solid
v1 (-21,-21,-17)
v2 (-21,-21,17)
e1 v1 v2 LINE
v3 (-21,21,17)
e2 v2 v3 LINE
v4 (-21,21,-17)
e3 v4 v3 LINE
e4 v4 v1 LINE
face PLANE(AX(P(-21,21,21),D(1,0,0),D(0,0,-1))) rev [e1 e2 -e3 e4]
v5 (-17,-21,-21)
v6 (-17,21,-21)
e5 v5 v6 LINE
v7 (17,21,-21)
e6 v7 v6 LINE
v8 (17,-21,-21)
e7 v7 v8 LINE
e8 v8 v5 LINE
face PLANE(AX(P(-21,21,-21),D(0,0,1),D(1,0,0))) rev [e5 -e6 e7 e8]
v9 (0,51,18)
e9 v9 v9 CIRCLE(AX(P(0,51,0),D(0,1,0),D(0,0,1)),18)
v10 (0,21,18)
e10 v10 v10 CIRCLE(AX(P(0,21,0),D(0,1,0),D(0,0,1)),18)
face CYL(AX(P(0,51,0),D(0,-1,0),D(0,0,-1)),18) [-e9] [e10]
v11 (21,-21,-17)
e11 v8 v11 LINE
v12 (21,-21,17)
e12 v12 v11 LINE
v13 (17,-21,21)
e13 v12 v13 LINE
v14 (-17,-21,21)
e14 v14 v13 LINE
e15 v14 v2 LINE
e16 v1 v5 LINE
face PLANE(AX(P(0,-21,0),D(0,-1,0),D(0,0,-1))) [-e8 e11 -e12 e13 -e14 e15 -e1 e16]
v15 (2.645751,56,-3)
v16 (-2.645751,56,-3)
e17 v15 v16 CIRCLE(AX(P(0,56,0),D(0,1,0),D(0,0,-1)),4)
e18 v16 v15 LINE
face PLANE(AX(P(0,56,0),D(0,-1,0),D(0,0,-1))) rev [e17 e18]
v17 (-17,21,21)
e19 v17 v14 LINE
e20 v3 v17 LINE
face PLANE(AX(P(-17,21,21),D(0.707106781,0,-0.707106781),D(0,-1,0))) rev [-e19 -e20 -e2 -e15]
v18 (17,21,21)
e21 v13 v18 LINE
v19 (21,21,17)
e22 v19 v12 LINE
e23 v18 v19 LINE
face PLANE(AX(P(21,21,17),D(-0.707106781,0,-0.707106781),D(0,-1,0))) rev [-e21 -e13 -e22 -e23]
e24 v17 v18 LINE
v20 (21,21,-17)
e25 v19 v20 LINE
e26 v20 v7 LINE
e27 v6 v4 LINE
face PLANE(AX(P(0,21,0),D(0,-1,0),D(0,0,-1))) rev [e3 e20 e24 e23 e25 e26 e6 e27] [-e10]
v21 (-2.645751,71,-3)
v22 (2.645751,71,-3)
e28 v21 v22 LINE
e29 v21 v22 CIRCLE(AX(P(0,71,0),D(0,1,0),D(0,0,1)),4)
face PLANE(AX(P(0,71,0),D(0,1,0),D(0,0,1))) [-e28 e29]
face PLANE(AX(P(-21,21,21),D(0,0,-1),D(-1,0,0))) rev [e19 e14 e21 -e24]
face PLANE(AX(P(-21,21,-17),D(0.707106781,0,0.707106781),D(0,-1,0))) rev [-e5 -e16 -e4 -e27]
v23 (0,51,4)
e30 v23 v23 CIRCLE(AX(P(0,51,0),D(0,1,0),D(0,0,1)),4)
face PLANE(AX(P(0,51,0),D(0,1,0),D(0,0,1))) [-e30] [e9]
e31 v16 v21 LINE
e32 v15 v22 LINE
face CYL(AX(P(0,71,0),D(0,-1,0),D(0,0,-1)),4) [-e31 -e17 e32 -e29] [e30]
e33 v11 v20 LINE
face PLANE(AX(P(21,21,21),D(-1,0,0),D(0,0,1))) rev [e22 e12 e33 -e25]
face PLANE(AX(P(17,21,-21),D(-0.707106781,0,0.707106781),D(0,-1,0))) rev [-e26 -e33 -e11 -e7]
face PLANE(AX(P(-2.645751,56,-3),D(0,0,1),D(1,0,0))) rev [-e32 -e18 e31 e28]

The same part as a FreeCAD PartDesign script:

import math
import FreeCAD as App
import Part
import Sketcher

V = App.Vector


def edges_at(feature, points):
    """Names of the edges that pass closest to the given points."""
    edges = feature.Shape.Edges
    near = lambda p: min(range(len(edges)), key=lambda i: edges[i].distToShape(Part.Vertex(*p))[0])
    return sorted({f"Edge{near(p) + 1}" for p in points})

doc = App.newDocument("Part")
body = doc.addObject("PartDesign::Body", "Body")

# Sketch on XZ plane
sketch1 = doc.addObject("Sketcher::SketchObject", "Sketch")
body.addObject(sketch1)
sketch1.AttachmentSupport = (doc.XZ_Plane, [""])
sketch1.MapMode = "FlatFace"
sketch1.addGeometry([
    Part.LineSegment(V(-21, -21, 0), V(-21, 21, 0)),
    Part.LineSegment(V(-21, 21, 0), V(21, 21, 0)),
    Part.LineSegment(V(21, 21, 0), V(21, -21, 0)),
    Part.LineSegment(V(21, -21, 0), V(-21, -21, 0)),
], False)
sketch1.addConstraint([
    Sketcher.Constraint("Coincident", 0, 2, 1, 1),
    Sketcher.Constraint("Coincident", 1, 2, 2, 1),
    Sketcher.Constraint("Coincident", 2, 2, 3, 1),
    Sketcher.Constraint("Coincident", 3, 2, 0, 1),
    Sketcher.Constraint("Vertical", 0),
    Sketcher.Constraint("Horizontal", 1),
    Sketcher.Constraint("Vertical", 2),
    Sketcher.Constraint("Horizontal", 3),
    Sketcher.Constraint("Symmetric", 0, 2, 2, 2, -1, 1),
    Sketcher.Constraint("Equal", 3, 0),
    Sketcher.Constraint("DistanceX", 1, 1, 1, 2, 42.0),
])
pad1 = doc.addObject("PartDesign::Pad", "Pad")
body.addObject(pad1)
pad1.Profile = sketch1
pad1.Length = 42
pad1.Midplane = True
doc.recompute()

chamfer = doc.addObject("PartDesign::Chamfer", "Chamfer")
body.addObject(chamfer)
chamfer.Base = (pad1, edges_at(pad1, [
    (21, 0, 21),
    (-21, 0, 21),
    (-21, 0, -21),
    (21, 0, -21),
]))
chamfer.Size = 4

# Sketch on XZ plane
sketch2 = doc.addObject("Sketcher::SketchObject", "Sketch001")
body.addObject(sketch2)
sketch2.AttachmentSupport = (doc.XZ_Plane, [""])
sketch2.MapMode = "FlatFace"
sketch2.AttachmentOffset = App.Placement(V(0, 0, -21), App.Rotation())
sketch2.addGeometry(Part.Circle(V(0, 0, 0), V(0, 0, 1), 18), False)
sketch2.addConstraint([
    Sketcher.Constraint("Coincident", 0, 3, -1, 1),
    Sketcher.Constraint("Diameter", 0, 36.0),
])
pad2 = doc.addObject("PartDesign::Pad", "Pad001")
body.addObject(pad2)
pad2.Profile = sketch2
pad2.Length = 30
pad2.Reversed = True

# Sketch on XZ plane
sketch3 = doc.addObject("Sketcher::SketchObject", "Sketch002")
body.addObject(sketch3)
sketch3.AttachmentSupport = (doc.XZ_Plane, [""])
sketch3.MapMode = "FlatFace"
sketch3.AttachmentOffset = App.Placement(V(0, 0, -51), App.Rotation())
sketch3.addGeometry(Part.Circle(V(0, 0, 0), V(0, 0, 1), 4), False)
sketch3.addConstraint([
    Sketcher.Constraint("Coincident", 0, 3, -1, 1),
    Sketcher.Constraint("Diameter", 0, 8.0),
])
pad3 = doc.addObject("PartDesign::Pad", "Pad002")
body.addObject(pad3)
pad3.Profile = sketch3
pad3.Length = 20
pad3.Reversed = True

# Sketch on XZ plane
sketch4 = doc.addObject("Sketcher::SketchObject", "Sketch003")
body.addObject(sketch4)
sketch4.AttachmentSupport = (doc.XZ_Plane, [""])
sketch4.MapMode = "FlatFace"
sketch4.AttachmentOffset = App.Placement(V(0, 0, -56), App.Rotation())
sketch4.addGeometry([
    Part.LineSegment(V(-2.6, -3, 0), V(2.6, -3, 0)),
    Part.ArcOfCircle(Part.Circle(V(0, 0, 0), V(0, 0, 1), 4), math.radians(-131), math.radians(-49)),
], False)
sketch4.addConstraint([
    Sketcher.Constraint("Coincident", 0, 1, 1, 1),
    Sketcher.Constraint("Coincident", 1, 2, 0, 2),
    Sketcher.Constraint("Horizontal", 0),
    Sketcher.Constraint("Coincident", 1, 3, -1, 1),
    Sketcher.Constraint("Radius", 1, 4.0),
    Sketcher.Constraint("DistanceY", 0, 1, -1, 1, 3.0),
])
pocket1 = doc.addObject("PartDesign::Pocket", "Pocket")
body.addObject(pocket1)
pocket1.Profile = sketch4
pocket1.Length = 15

doc.recompute()
